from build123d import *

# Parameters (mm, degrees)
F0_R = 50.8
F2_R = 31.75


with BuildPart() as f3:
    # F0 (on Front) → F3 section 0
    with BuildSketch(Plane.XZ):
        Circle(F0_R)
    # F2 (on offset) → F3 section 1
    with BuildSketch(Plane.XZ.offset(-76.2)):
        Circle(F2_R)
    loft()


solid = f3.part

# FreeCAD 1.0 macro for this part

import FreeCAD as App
import Part
import Sketcher

V = App.Vector
Q = App.Units.Quantity

doc = App.newDocument("Part")
body = doc.addObject("PartDesign::Body", "Body")

sketch1 = body.newObject("Sketcher::SketchObject", "Sketch")
sketch1.AttachmentSupport = (doc.getObject("XZ_Plane"), [""])
sketch1.MapMode = "FlatFace"
sketch1.addGeometry(Part.Circle(V(0, 0, 0), V(0, 0, 1), 50.8), False)
sketch1.addConstraint(Sketcher.Constraint("Coincident", 0, 3, -1, 1))
sketch1.addConstraint(Sketcher.Constraint("Diameter", 0, Q("4 in")))

sketch2 = body.newObject("Sketcher::SketchObject", "Sketch001")
sketch2.AttachmentSupport = (doc.getObject("XZ_Plane"), [""])
sketch2.MapMode = "FlatFace"
sketch2.AttachmentOffset = App.Placement(V(0, 0, -3 * 25.4), App.Rotation())
sketch2.addGeometry(Part.Circle(V(0, 0, 0), V(0, 0, 1), 31.75), False)
sketch2.addConstraint(Sketcher.Constraint("Coincident", 0, 3, -1, 1))
sketch2.addConstraint(Sketcher.Constraint("Diameter", 0, Q("2.5 in")))

additiveloft = body.newObject("PartDesign::AdditiveLoft", "AdditiveLoft")
additiveloft.Profile = sketch1
additiveloft.Sections = [sketch2]

doc.recompute()
